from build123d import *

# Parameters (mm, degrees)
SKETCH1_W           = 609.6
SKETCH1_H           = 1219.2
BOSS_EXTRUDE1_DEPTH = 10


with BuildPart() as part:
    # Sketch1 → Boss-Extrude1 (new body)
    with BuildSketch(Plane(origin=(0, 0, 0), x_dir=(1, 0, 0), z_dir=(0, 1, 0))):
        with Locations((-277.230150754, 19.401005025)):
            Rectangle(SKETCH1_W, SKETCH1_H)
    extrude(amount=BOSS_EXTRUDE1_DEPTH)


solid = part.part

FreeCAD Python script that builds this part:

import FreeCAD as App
import Part
import Sketcher

V = App.Vector
Q = App.Units.Quantity

doc = App.newDocument("Part")
body = doc.addObject("PartDesign::Body", "Body")

# Sketch on XZ plane
sketch1 = body.newObject("Sketcher::SketchObject", "Sketch")
sketch1.AttachmentSupport = (doc.getObject("XZ_Plane"), [""])
sketch1.MapMode = "FlatFace"
sketch1.addGeometry(Part.LineSegment(V(-582, -629, 0), V(-582, 590, 0)), False)
sketch1.addGeometry(Part.LineSegment(V(-582, 590, 0), V(28, 590, 0)), False)
sketch1.addGeometry(Part.LineSegment(V(28, 590, 0), V(28, -629, 0)), False)
sketch1.addGeometry(Part.LineSegment(V(28, -629, 0), V(-582, -629, 0)), False)
sketch1.addConstraint(Sketcher.Constraint("Coincident", 0, 2, 1, 1))
sketch1.addConstraint(Sketcher.Constraint("Coincident", 1, 2, 2, 1))
sketch1.addConstraint(Sketcher.Constraint("Coincident", 2, 2, 3, 1))
sketch1.addConstraint(Sketcher.Constraint("Coincident", 3, 2, 0, 1))
sketch1.addConstraint(Sketcher.Constraint("Vertical", 0))
sketch1.addConstraint(Sketcher.Constraint("Horizontal", 1))
sketch1.addConstraint(Sketcher.Constraint("Vertical", 2))
sketch1.addConstraint(Sketcher.Constraint("Horizontal", 3))
sketch1.addConstraint(Sketcher.Constraint("DistanceX", 1, 1, 1, 2, Q("24 in")))
sketch1.addConstraint(Sketcher.Constraint("DistanceY", 0, 1, 0, 2, Q("48 in")))
sketch1.addConstraint(Sketcher.Constraint("DistanceX", 0, 2, -1, 1, Q("582.030151 mm")))
sketch1.addConstraint(Sketcher.Constraint("DistanceY", -1, 1, 0, 2, Q("590.198995 mm")))
pad1 = body.newObject("PartDesign::Pad", "Pad")
pad1.Profile = sketch1
pad1.Length = 10
pad1.Reversed = True

doc.recompute()
